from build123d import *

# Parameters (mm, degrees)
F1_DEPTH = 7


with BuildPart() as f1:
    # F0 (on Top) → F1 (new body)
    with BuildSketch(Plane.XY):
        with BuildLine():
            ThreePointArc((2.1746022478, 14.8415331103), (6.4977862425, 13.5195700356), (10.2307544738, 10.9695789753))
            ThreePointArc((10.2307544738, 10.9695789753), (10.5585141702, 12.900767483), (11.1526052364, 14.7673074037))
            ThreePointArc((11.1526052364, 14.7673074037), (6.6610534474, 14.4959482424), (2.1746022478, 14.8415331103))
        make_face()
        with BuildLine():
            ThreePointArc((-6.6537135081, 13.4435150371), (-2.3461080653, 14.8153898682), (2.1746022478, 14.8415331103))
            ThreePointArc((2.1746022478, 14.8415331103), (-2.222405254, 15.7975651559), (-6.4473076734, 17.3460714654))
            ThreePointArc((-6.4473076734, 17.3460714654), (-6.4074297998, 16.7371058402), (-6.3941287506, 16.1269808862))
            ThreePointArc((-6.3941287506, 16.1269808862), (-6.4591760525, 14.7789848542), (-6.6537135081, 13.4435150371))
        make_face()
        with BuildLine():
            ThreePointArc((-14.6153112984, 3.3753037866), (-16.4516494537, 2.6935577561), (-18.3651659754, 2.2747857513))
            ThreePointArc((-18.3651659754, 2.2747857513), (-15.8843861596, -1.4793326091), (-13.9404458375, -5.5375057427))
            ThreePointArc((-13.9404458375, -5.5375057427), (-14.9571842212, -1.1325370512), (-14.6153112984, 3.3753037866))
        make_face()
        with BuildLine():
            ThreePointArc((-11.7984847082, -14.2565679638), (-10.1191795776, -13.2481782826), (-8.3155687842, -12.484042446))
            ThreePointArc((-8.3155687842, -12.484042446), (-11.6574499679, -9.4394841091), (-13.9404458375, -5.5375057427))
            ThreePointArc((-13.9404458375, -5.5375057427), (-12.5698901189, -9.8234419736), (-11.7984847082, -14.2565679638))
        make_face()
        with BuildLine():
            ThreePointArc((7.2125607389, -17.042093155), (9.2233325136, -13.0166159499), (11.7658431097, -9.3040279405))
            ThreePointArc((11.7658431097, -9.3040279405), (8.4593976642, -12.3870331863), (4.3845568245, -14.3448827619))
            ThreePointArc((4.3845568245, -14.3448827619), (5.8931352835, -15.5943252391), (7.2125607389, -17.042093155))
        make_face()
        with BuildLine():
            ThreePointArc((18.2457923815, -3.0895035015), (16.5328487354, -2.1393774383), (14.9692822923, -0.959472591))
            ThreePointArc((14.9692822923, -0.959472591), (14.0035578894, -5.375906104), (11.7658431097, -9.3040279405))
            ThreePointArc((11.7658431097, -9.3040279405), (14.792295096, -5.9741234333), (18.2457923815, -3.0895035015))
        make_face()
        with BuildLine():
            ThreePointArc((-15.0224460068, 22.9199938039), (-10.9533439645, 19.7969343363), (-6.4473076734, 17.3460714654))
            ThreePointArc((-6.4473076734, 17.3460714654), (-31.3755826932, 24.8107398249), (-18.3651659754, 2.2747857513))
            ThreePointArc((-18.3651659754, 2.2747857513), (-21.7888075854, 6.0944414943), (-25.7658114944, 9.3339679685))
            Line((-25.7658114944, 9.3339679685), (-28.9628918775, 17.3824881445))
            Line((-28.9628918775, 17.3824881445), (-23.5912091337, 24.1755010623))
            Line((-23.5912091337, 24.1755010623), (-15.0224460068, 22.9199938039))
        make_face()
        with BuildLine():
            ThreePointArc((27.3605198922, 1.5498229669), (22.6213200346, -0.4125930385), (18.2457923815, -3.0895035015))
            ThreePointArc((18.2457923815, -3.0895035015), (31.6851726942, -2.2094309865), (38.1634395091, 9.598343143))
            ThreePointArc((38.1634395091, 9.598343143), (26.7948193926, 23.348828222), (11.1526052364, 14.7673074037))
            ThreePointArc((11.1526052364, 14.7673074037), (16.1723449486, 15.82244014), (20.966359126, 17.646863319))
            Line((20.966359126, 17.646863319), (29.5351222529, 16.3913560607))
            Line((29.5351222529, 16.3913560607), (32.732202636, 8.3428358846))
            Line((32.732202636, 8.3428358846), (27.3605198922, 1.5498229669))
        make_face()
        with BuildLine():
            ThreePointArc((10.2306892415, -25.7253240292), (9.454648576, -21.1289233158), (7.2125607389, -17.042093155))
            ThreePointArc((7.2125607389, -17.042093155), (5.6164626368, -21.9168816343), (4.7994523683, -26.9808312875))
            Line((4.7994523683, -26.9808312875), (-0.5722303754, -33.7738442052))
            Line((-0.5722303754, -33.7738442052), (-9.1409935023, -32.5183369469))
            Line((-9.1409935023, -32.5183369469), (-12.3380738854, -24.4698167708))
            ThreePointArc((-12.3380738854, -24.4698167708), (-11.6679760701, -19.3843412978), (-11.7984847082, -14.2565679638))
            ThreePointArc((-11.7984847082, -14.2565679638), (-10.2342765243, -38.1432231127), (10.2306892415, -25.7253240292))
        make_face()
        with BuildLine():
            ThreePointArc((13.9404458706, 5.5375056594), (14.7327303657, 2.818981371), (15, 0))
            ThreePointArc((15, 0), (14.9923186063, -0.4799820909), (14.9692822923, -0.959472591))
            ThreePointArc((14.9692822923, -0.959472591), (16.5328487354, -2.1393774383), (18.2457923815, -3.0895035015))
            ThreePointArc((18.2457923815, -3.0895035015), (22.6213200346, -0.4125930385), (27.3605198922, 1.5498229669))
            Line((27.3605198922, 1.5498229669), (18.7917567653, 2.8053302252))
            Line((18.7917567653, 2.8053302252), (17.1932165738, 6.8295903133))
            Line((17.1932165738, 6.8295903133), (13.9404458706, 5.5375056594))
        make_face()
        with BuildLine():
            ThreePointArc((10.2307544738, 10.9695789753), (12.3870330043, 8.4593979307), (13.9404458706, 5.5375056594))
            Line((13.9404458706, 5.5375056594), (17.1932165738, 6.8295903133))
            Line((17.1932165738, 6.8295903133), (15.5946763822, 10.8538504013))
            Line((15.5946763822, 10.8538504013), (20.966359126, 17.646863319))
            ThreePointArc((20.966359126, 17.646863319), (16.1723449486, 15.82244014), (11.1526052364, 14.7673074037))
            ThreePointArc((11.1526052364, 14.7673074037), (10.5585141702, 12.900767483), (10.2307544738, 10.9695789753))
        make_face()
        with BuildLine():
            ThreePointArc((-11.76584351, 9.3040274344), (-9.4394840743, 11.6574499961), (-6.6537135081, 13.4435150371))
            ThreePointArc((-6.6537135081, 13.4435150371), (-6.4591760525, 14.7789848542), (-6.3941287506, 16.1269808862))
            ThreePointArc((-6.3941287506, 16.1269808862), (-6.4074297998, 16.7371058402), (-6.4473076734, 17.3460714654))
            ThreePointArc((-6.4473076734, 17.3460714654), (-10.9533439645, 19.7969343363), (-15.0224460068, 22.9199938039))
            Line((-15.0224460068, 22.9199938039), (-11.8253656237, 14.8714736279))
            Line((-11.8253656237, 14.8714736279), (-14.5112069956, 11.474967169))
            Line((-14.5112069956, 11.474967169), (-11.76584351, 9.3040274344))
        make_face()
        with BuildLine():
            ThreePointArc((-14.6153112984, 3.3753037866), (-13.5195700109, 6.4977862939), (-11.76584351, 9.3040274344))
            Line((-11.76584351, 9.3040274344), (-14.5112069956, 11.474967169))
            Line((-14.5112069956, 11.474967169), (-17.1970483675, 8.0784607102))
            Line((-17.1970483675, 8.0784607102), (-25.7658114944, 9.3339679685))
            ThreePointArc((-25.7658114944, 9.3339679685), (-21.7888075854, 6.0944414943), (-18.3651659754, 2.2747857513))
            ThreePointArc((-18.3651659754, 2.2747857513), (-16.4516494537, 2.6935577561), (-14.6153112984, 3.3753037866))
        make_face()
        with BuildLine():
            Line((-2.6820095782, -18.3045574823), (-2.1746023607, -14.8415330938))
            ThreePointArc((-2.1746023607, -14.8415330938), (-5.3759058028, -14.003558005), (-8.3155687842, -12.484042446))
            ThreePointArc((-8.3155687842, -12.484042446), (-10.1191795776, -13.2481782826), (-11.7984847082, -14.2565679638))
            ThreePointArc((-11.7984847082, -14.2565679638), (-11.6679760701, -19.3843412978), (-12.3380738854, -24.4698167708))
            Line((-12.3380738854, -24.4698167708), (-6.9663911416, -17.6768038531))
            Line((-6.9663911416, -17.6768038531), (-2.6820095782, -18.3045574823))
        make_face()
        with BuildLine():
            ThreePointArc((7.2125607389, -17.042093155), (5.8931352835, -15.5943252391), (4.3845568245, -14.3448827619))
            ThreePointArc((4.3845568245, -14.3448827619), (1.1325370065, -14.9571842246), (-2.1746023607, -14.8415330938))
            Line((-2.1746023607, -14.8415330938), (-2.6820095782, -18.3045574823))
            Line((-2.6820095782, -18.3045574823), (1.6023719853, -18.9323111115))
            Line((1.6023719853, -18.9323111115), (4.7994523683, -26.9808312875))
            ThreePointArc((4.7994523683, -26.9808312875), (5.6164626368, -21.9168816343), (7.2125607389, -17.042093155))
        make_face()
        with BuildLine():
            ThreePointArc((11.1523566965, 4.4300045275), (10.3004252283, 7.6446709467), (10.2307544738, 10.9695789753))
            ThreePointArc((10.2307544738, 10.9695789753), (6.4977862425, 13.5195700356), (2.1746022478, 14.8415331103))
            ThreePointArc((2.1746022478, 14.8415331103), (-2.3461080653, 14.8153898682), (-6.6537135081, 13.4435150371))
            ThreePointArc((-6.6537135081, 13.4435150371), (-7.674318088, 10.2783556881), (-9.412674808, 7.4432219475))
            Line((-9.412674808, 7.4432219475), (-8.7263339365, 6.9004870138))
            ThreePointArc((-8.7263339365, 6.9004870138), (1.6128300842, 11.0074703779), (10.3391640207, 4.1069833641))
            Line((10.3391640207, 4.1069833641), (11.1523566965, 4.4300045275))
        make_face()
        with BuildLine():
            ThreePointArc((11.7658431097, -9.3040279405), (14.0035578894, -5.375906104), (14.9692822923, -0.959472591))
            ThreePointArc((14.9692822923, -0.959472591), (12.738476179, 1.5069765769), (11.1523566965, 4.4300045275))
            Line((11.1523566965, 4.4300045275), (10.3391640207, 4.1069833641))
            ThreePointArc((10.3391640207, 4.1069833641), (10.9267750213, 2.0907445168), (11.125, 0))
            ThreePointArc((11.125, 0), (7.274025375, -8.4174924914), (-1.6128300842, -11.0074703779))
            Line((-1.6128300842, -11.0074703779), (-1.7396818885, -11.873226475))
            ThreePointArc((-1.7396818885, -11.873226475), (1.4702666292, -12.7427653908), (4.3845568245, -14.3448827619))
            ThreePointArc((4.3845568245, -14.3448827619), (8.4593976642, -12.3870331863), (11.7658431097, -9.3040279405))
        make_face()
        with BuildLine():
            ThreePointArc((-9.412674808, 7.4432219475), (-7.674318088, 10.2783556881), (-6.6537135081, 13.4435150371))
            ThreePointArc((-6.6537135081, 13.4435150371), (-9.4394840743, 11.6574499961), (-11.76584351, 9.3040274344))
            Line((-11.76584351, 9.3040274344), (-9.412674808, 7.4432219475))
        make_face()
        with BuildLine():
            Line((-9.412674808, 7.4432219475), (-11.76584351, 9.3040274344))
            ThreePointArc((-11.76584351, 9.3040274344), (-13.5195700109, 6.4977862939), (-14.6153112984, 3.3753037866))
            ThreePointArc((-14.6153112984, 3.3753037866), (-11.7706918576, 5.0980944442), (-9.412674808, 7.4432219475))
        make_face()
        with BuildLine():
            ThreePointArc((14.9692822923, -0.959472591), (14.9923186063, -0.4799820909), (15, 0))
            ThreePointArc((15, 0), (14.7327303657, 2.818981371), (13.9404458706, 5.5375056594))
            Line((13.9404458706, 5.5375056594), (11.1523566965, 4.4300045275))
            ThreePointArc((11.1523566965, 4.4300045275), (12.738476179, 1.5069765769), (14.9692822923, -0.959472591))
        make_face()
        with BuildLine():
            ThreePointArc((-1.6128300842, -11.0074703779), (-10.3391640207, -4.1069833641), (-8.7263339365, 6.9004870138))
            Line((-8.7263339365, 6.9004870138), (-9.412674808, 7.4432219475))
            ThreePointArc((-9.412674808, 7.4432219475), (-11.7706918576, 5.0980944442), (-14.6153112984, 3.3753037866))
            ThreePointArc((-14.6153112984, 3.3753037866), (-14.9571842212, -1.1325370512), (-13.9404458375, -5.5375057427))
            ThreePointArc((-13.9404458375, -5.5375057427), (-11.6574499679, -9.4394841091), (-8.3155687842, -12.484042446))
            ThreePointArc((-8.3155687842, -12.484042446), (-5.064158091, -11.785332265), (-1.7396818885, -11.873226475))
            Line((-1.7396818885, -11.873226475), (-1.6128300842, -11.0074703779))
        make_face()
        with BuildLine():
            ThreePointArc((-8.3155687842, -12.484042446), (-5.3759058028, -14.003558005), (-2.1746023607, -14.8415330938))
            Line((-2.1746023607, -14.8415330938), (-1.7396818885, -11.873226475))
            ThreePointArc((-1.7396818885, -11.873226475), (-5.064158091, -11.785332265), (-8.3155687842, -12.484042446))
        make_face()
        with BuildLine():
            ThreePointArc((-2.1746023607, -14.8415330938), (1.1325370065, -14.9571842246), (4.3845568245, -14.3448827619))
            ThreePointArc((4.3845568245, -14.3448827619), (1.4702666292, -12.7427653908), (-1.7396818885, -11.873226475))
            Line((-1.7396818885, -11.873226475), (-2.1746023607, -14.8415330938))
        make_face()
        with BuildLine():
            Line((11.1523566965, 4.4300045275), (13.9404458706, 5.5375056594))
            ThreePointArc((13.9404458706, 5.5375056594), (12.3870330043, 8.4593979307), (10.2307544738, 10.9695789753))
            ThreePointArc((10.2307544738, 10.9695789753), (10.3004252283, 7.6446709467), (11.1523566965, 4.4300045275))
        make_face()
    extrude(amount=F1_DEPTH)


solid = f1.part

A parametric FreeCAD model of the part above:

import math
import FreeCAD as App
import Part
import Sketcher

V = App.Vector


def add_polygon(sketch, points):
    """Adds a closed chain of lines whose ends are joined by coincident constraints."""
    first, n = sketch.GeometryCount, len(points)
    for a, b in zip(points, points[1:] + points[:1]):
        sketch.addGeometry(Part.LineSegment(App.Vector(*a, 0), App.Vector(*b, 0)), False)
    for i in range(n):
        sketch.addConstraint(Sketcher.Constraint("Coincident", first + i, 2, first + (i + 1) % n, 1))

doc = App.newDocument("Part")
body = doc.addObject("PartDesign::Body", "Body")

# Sketch on XY plane
sketch1 = body.newObject("Sketcher::SketchObject", "Sketch")
sketch1.AttachmentSupport = (doc.getObject("XY_Plane"), [""])
sketch1.MapMode = "FlatFace"
sketch1.addGeometry(Part.ArcOfCircle(Part.Circle(V(-44.440452, -17.652897, 0), V(0, 0, 1), 32.818182), math.radians(21.664256), math.radians(37.388379)), False)  # 0
sketch1.addGeometry(Part.ArcOfCircle(Part.Circle(V(-44.440452, -17.652897, 0), V(0, 0, 1), 32.818182), math.radians(5.940132), math.radians(21.664256)), False)  # 1
sketch1.addGeometry(Part.ArcOfCircle(Part.Circle(V(-3.769311, -25.725324, 0), V(0, 0, 1), 14), math.radians(124.995523), math.radians(360)), False)  # 2
sketch1.addGeometry(Part.ArcOfCircle(Part.Circle(V(-3.769311, -25.725324, 0), V(0, 0, 1), 14), math.radians(0), math.radians(38.332989)), False)  # 3
sketch1.addGeometry(Part.ArcOfCircle(Part.Circle(V(37.508083, -29.660112, 0), V(0, 0, 1), 32.818182), math.radians(141.664257), math.radians(157.388379)), False)  # 4
sketch1.addGeometry(Part.ArcOfCircle(Part.Circle(V(37.508083, -29.660112, 0), V(0, 0, 1), 32.818182), math.radians(125.940132), math.radians(141.664257)), False)  # 5
sketch1.addGeometry(Part.ArcOfCircle(Part.Circle(V(24.16344, 9.598343, 0), V(0, 0, 1), 14), math.radians(-115.004477), math.radians(158.332989)), False)  # 6
sketch1.addGeometry(Part.ArcOfCircle(Part.Circle(V(6.932369, 47.313009, 0), V(0, 0, 1), 32.818182), math.radians(-98.335744), math.radians(-82.611621)), False)  # 7
sketch1.addGeometry(Part.ArcOfCircle(Part.Circle(V(6.932369, 47.313009, 0), V(0, 0, 1), 32.818182), math.radians(-114.059868), math.radians(-98.335744)), False)  # 8
sketch1.addGeometry(Part.ArcOfCircle(Part.Circle(V(-20.394129, 16.126981, 0), V(0, 0, 1), 14), math.radians(4.995523), math.radians(278.332989)), False)  # 9
add_polygon(sketch1, [(1.602372, -18.932311), (4.799452, -26.980831), (-0.57223, -33.773844), (-9.140994, -32.518337), (-12.338074, -24.469817), (-6.966391, -17.676804), (-2.68201, -18.304557)])  # lines 10-16
sketch1.addGeometry(Part.ArcOfCircle(Part.Circle(V(0, 0, 0), V(0, 0, 1), 11.125), math.radians(-98.335744), math.radians(0)), False)  # 17
sketch1.addGeometry(Part.ArcOfCircle(Part.Circle(V(0, 0, 0), V(0, 0, 1), 11.125), math.radians(141.664256), math.radians(261.664256)), False)  # 18
sketch1.addGeometry(Part.ArcOfCircle(Part.Circle(V(0, 0, 0), V(0, 0, 1), 11.125), math.radians(21.664256), math.radians(141.664256)), False)  # 19
sketch1.addGeometry(Part.ArcOfCircle(Part.Circle(V(0, 0, 0), V(0, 0, 1), 11.125), math.radians(0), math.radians(21.664256)), False)  # 20
add_polygon(sketch1, [(-17.197048, 8.078461), (-25.765811, 9.333968), (-28.962892, 17.382488), (-23.591209, 24.175501), (-15.022446, 22.919994), (-11.825366, 14.871474), (-14.511207, 11.474967)])  # lines 21-27
add_polygon(sketch1, [(17.193217, 6.82959), (15.594676, 10.85385), (20.966359, 17.646863), (29.535122, 16.391356), (32.732203, 8.342836), (27.36052, 1.549823), (18.791757, 2.80533)])  # lines 28-34
sketch1.addConstraint(Sketcher.Constraint("Tangent", 0, 1, 1, 2))
sketch1.addConstraint(Sketcher.Constraint("Coincident", 1, 1, 2, 1))
sketch1.addConstraint(Sketcher.Constraint("Tangent", 2, 2, 3, 1))
sketch1.addConstraint(Sketcher.Constraint("Coincident", 3, 2, 4, 2))
sketch1.addConstraint(Sketcher.Constraint("Tangent", 4, 1, 5, 2))
sketch1.addConstraint(Sketcher.Constraint("Coincident", 5, 1, 6, 1))
sketch1.addConstraint(Sketcher.Constraint("Coincident", 6, 2, 7, 2))
sketch1.addConstraint(Sketcher.Constraint("Tangent", 7, 1, 8, 2))
sketch1.addConstraint(Sketcher.Constraint("Coincident", 8, 1, 9, 1))
sketch1.addConstraint(Sketcher.Constraint("Coincident", 9, 2, 0, 2))
sketch1.addConstraint(Sketcher.Constraint("Tangent", 17, 1, 18, 2))
sketch1.addConstraint(Sketcher.Constraint("Tangent", 18, 1, 19, 2))
sketch1.addConstraint(Sketcher.Constraint("Tangent", 19, 1, 20, 2))
sketch1.addConstraint(Sketcher.Constraint("Tangent", 20, 1, 17, 2))
sketch1.addConstraint(Sketcher.Constraint("Coincident", 17, 3, -1, 1))
sketch1.addConstraint(Sketcher.Constraint("Equal", 0, 1))
sketch1.addConstraint(Sketcher.Constraint("Equal", 2, 3))
sketch1.addConstraint(Sketcher.Constraint("Equal", 1, 4))
sketch1.addConstraint(Sketcher.Constraint("Equal", 4, 5))
sketch1.addConstraint(Sketcher.Constraint("Equal", 3, 6))
sketch1.addConstraint(Sketcher.Constraint("Equal", 5, 7))
sketch1.addConstraint(Sketcher.Constraint("Equal", 7, 8))
sketch1.addConstraint(Sketcher.Constraint("Equal", 6, 9))
sketch1.addConstraint(Sketcher.Constraint("Equal", 17, 18))
sketch1.addConstraint(Sketcher.Constraint("PointOnObject", 20, 1, -1))
sketch1.addConstraint(Sketcher.Constraint("Parallel", 10, 13))
sketch1.addConstraint(Sketcher.Constraint("Parallel", 11, 14))
sketch1.addConstraint(Sketcher.Constraint("Parallel", 12, 15))
sketch1.addConstraint(Sketcher.Constraint("Parallel", 15, 16))
sketch1.addConstraint(Sketcher.Constraint("Parallel", 16, 21))
sketch1.addConstraint(Sketcher.Constraint("Parallel", 13, 22))
sketch1.addConstraint(Sketcher.Constraint("Parallel", 14, 23))
sketch1.addConstraint(Sketcher.Constraint("Parallel", 21, 24))
sketch1.addConstraint(Sketcher.Constraint("Parallel", 22, 25))
sketch1.addConstraint(Sketcher.Constraint("Parallel", 23, 26))
sketch1.addConstraint(Sketcher.Constraint("Parallel", 26, 27))
sketch1.addConstraint(Sketcher.Constraint("Parallel", 25, 28))
sketch1.addConstraint(Sketcher.Constraint("Parallel", 27, 29))
sketch1.addConstraint(Sketcher.Constraint("Parallel", 24, 30))
sketch1.addConstraint(Sketcher.Constraint("Parallel", 28, 31))
sketch1.addConstraint(Sketcher.Constraint("Parallel", 29, 32))
sketch1.addConstraint(Sketcher.Constraint("Parallel", 30, 33))
sketch1.addConstraint(Sketcher.Constraint("Parallel", 31, 34))
sketch1.addConstraint(Sketcher.Constraint("Horizontal", 3, 3, 2, 2))
sketch1.addConstraint(Sketcher.Constraint("Equal", 10, 11))
sketch1.addConstraint(Sketcher.Constraint("Equal", 11, 12))
sketch1.addConstraint(Sketcher.Constraint("Equal", 12, 13))
sketch1.addConstraint(Sketcher.Constraint("Equal", 15, 16))
sketch1.addConstraint(Sketcher.Constraint("Equal", 14, 21))
sketch1.addConstraint(Sketcher.Constraint("Equal", 21, 22))
sketch1.addConstraint(Sketcher.Constraint("Equal", 22, 23))
sketch1.addConstraint(Sketcher.Constraint("Equal", 23, 24))
sketch1.addConstraint(Sketcher.Constraint("Equal", 16, 26))
sketch1.addConstraint(Sketcher.Constraint("Equal", 27, 28))
sketch1.addConstraint(Sketcher.Constraint("Equal", 25, 29))
sketch1.addConstraint(Sketcher.Constraint("Equal", 29, 30))
sketch1.addConstraint(Sketcher.Constraint("Equal", 30, 31))
sketch1.addConstraint(Sketcher.Constraint("Equal", 31, 32))
sketch1.addConstraint(Sketcher.Constraint("Radius", 2, 14.0))
sketch1.addConstraint(Sketcher.Constraint("Radius", 17, 11.125))
sketch1.addConstraint(Sketcher.Constraint("Radius", 0, 32.818182))
sketch1.addConstraint(Sketcher.Constraint("DistanceY", 18, 1, 22, 2, 10.482001))
sketch1.addConstraint(Sketcher.Constraint("DistanceY", -1, 1, 23, 2, 24.175501))
sketch1.addConstraint(Sketcher.Constraint("DistanceY", 14, 2, 0, 1, 12.139298))
sketch1.addConstraint(Sketcher.Constraint("DistanceX", 2, 3, 15, 2, 1.087301))
sketch1.addConstraint(Sketcher.Constraint("DistanceY", 9, 2, 18, 1, 4.625701))
sketch1.addConstraint(Sketcher.Constraint("DistanceX", 23, 2, 8, 1, 17.143901))
sketch1.addConstraint(Sketcher.Constraint("DistanceX", 26, 2, 8, 1, 8.063899))
sketch1.addConstraint(Sketcher.Constraint("DistanceX", 0, 3, -1, 1, 44.440452))
sketch1.addConstraint(Sketcher.Constraint("DistanceX", 2, 3, -1, 1, 3.769311))
sketch1.addConstraint(Sketcher.Constraint("DistanceY", 4, 3, -1, 1, 29.660112))
sketch1.addConstraint(Sketcher.Constraint("DistanceX", -1, 1, 6, 3, 24.16344))
sketch1.addConstraint(Sketcher.Constraint("DistanceX", -1, 1, 7, 3, 6.932369))
sketch1.addConstraint(Sketcher.Constraint("DistanceY", -1, 1, 7, 3, 47.313009))
sketch1.addConstraint(Sketcher.Constraint("DistanceX", 9, 3, -1, 1, 20.394129))
sketch1.addConstraint(Sketcher.Constraint("DistanceY", -1, 1, 9, 3, 16.126981))
sketch1.addConstraint(Sketcher.Constraint("DistanceX", -1, 1, 3, 2, 7.212561))
sketch1.addConstraint(Sketcher.Constraint("DistanceY", 10, 2, -1, 1, 26.980831))
sketch1.addConstraint(Sketcher.Constraint("DistanceX", 11, 2, -1, 1, 0.57223))
sketch1.addConstraint(Sketcher.Constraint("DistanceX", 14, 2, -1, 1, 6.966391))
sketch1.addConstraint(Sketcher.Constraint("DistanceY", 16, 2, -1, 1, 18.932311))
sketch1.addConstraint(Sketcher.Constraint("DistanceX", 17, 1, -1, 1, 1.61283))
sketch1.addConstraint(Sketcher.Constraint("DistanceY", -1, 1, 28, 2, 10.85385))
sketch1.addConstraint(Sketcher.Constraint("DistanceX", -1, 1, 29, 2, 20.966359))
sketch1.addConstraint(Sketcher.Constraint("DistanceY", 0, 3, 6, 3, 27.25124))
sketch1.addConstraint(Sketcher.Constraint("DistanceY", 2, 3, 0, 1, 20.187818))
sketch1.addConstraint(Sketcher.Constraint("DistanceX", 4, 1, 5, 1, 6.479949))
sketch1.addConstraint(Sketcher.Constraint("DistanceX", 8, 1, 7, 1, 8.62191))
sketch1.addConstraint(Sketcher.Constraint("DistanceX", 19, 1, 5, 1, 7.906628))
pad1 = body.newObject("PartDesign::Pad", "Pad")
pad1.Profile = sketch1
pad1.Length = 7

doc.recompute()
